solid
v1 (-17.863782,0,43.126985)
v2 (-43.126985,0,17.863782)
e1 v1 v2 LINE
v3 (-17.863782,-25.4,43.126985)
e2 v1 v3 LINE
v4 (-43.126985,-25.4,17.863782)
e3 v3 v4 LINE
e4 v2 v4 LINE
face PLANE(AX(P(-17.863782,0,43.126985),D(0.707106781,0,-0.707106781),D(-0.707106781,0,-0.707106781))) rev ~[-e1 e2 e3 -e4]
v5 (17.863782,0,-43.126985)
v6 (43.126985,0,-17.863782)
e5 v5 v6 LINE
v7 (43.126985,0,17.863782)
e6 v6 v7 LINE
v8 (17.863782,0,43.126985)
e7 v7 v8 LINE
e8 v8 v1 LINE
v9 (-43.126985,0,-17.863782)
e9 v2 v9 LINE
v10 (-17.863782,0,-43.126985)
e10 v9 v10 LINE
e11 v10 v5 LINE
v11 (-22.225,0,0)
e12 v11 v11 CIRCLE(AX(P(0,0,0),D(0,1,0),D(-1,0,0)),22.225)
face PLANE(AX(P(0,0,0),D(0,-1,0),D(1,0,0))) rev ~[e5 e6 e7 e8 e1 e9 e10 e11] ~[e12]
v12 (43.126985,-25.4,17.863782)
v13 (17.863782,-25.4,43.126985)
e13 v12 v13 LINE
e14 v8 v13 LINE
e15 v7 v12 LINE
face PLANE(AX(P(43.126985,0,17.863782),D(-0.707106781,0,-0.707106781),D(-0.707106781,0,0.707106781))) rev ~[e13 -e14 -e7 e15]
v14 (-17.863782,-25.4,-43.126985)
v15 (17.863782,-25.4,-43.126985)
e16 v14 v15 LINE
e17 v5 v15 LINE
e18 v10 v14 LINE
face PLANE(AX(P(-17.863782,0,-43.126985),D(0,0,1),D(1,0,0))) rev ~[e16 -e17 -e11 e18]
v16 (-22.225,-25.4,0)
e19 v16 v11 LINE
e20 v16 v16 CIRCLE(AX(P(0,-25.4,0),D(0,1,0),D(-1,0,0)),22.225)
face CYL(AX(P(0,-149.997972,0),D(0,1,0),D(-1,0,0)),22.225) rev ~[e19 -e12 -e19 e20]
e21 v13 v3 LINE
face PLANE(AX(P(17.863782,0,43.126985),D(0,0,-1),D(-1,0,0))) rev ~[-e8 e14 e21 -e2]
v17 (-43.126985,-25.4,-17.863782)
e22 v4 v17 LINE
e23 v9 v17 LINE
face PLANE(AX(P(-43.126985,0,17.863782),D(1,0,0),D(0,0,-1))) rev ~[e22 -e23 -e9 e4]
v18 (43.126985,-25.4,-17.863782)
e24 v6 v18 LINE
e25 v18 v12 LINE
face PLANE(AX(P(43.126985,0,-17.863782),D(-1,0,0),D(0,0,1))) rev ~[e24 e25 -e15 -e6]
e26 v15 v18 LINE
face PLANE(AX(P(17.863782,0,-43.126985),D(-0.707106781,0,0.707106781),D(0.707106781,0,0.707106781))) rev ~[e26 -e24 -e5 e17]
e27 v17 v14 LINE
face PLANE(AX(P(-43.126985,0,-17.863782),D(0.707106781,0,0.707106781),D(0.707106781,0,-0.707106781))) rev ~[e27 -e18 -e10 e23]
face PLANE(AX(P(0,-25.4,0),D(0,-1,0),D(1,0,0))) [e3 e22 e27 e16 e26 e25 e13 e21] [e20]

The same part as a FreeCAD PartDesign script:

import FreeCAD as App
import Part
import Sketcher

V = App.Vector
Q = App.Units.Quantity

doc = App.newDocument("Part")
body = doc.addObject("PartDesign::Body", "Body")

# Sketch on XZ plane
sketch1 = doc.addObject("Sketcher::SketchObject", "Sketch")
body.addObject(sketch1)
sketch1.AttachmentSupport = (doc.XZ_Plane, [""])
sketch1.MapMode = "FlatFace"
sketch1.addGeometry(Part.LineSegment(V(17.863782, 43.126985, 0), V(-17.863782, 43.126985, 0)), False)
sketch1.addGeometry(Part.LineSegment(V(-17.863782, 43.126985, 0), V(-43.126985, 17.863782, 0)), False)
sketch1.addGeometry(Part.LineSegment(V(-43.126985, 17.863782, 0), V(-43.126985, -17.863782, 0)), False)
sketch1.addGeometry(Part.LineSegment(V(-43.126985, -17.863782, 0), V(-17.863782, -43.126985, 0)), False)
sketch1.addGeometry(Part.LineSegment(V(-17.863782, -43.126985, 0), V(17.863782, -43.126985, 0)), False)
sketch1.addGeometry(Part.LineSegment(V(17.863782, -43.126985, 0), V(43.126985, -17.863782, 0)), False)
sketch1.addGeometry(Part.LineSegment(V(43.126985, -17.863782, 0), V(43.126985, 17.863782, 0)), False)
sketch1.addGeometry(Part.LineSegment(V(43.126985, 17.863782, 0), V(17.863782, 43.126985, 0)), False)
sketch1.addConstraint(Sketcher.Constraint("Coincident", 0, 2, 1, 1))
sketch1.addConstraint(Sketcher.Constraint("Coincident", 1, 2, 2, 1))
sketch1.addConstraint(Sketcher.Constraint("Coincident", 2, 2, 3, 1))
sketch1.addConstraint(Sketcher.Constraint("Coincident", 3, 2, 4, 1))
sketch1.addConstraint(Sketcher.Constraint("Coincident", 4, 2, 5, 1))
sketch1.addConstraint(Sketcher.Constraint("Coincident", 5, 2, 6, 1))
sketch1.addConstraint(Sketcher.Constraint("Coincident", 6, 2, 7, 1))
sketch1.addConstraint(Sketcher.Constraint("Coincident", 7, 2, 0, 1))
sketch1.addConstraint(Sketcher.Constraint("Horizontal", 0))
sketch1.addConstraint(Sketcher.Constraint("Vertical", 2))
sketch1.addConstraint(Sketcher.Constraint("Horizontal", 4))
sketch1.addConstraint(Sketcher.Constraint("Vertical", 6))
sketch1.addConstraint(Sketcher.Constraint("Symmetric", 0, 2, 4, 2, -1, 1))
sketch1.addConstraint(Sketcher.Constraint("Symmetric", 1, 2, 5, 2, -1, 1))
sketch1.addConstraint(Sketcher.Constraint("Perpendicular", 1, 3))
sketch1.addConstraint(Sketcher.Constraint("Perpendicular", 5, 7))
sketch1.addConstraint(Sketcher.Constraint("Horizontal", 2, 2, 5, 2))
sketch1.addConstraint(Sketcher.Constraint("Horizontal", 1, 2, 6, 2))
sketch1.addConstraint(Sketcher.Constraint("Vertical", 0, 2, 3, 2))
sketch1.addConstraint(Sketcher.Constraint("Equal", 4, 2))
sketch1.addConstraint(Sketcher.Constraint("DistanceX", 0, 2, 0, 1, Q("35.727564 mm")))
sketch1.addConstraint(Sketcher.Constraint("DistanceY", 3, 2, 0, 2, Q("86.25397 mm")))
pad1 = doc.addObject("PartDesign::Pad", "Pad")
body.addObject(pad1)
pad1.Profile = sketch1
pad1.Length = Q("1 in")

# Sketch on XZ plane
sketch2 = doc.addObject("Sketcher::SketchObject", "Sketch001")
body.addObject(sketch2)
sketch2.AttachmentSupport = (doc.XZ_Plane, [""])
sketch2.MapMode = "FlatFace"
sketch2.AttachmentOffset = App.Placement(V(0, 0, 1 * 25.4), App.Rotation())
sketch2.addGeometry(Part.Circle(V(0, 0, 0), V(0, 0, 1), 22.225), False)
sketch2.addConstraint(Sketcher.Constraint("Coincident", 0, 3, -1, 1))
sketch2.addConstraint(Sketcher.Constraint("Diameter", 0, Q("1.75 in")))
doc.recompute()
hole = doc.addObject("PartDesign::Hole", "Hole")
body.addObject(hole)
hole.Profile = sketch2
hole.ThreadType = "None"
hole.Diameter = Q("1.75 in")
hole.DepthType = "ThroughAll"

doc.recompute()
